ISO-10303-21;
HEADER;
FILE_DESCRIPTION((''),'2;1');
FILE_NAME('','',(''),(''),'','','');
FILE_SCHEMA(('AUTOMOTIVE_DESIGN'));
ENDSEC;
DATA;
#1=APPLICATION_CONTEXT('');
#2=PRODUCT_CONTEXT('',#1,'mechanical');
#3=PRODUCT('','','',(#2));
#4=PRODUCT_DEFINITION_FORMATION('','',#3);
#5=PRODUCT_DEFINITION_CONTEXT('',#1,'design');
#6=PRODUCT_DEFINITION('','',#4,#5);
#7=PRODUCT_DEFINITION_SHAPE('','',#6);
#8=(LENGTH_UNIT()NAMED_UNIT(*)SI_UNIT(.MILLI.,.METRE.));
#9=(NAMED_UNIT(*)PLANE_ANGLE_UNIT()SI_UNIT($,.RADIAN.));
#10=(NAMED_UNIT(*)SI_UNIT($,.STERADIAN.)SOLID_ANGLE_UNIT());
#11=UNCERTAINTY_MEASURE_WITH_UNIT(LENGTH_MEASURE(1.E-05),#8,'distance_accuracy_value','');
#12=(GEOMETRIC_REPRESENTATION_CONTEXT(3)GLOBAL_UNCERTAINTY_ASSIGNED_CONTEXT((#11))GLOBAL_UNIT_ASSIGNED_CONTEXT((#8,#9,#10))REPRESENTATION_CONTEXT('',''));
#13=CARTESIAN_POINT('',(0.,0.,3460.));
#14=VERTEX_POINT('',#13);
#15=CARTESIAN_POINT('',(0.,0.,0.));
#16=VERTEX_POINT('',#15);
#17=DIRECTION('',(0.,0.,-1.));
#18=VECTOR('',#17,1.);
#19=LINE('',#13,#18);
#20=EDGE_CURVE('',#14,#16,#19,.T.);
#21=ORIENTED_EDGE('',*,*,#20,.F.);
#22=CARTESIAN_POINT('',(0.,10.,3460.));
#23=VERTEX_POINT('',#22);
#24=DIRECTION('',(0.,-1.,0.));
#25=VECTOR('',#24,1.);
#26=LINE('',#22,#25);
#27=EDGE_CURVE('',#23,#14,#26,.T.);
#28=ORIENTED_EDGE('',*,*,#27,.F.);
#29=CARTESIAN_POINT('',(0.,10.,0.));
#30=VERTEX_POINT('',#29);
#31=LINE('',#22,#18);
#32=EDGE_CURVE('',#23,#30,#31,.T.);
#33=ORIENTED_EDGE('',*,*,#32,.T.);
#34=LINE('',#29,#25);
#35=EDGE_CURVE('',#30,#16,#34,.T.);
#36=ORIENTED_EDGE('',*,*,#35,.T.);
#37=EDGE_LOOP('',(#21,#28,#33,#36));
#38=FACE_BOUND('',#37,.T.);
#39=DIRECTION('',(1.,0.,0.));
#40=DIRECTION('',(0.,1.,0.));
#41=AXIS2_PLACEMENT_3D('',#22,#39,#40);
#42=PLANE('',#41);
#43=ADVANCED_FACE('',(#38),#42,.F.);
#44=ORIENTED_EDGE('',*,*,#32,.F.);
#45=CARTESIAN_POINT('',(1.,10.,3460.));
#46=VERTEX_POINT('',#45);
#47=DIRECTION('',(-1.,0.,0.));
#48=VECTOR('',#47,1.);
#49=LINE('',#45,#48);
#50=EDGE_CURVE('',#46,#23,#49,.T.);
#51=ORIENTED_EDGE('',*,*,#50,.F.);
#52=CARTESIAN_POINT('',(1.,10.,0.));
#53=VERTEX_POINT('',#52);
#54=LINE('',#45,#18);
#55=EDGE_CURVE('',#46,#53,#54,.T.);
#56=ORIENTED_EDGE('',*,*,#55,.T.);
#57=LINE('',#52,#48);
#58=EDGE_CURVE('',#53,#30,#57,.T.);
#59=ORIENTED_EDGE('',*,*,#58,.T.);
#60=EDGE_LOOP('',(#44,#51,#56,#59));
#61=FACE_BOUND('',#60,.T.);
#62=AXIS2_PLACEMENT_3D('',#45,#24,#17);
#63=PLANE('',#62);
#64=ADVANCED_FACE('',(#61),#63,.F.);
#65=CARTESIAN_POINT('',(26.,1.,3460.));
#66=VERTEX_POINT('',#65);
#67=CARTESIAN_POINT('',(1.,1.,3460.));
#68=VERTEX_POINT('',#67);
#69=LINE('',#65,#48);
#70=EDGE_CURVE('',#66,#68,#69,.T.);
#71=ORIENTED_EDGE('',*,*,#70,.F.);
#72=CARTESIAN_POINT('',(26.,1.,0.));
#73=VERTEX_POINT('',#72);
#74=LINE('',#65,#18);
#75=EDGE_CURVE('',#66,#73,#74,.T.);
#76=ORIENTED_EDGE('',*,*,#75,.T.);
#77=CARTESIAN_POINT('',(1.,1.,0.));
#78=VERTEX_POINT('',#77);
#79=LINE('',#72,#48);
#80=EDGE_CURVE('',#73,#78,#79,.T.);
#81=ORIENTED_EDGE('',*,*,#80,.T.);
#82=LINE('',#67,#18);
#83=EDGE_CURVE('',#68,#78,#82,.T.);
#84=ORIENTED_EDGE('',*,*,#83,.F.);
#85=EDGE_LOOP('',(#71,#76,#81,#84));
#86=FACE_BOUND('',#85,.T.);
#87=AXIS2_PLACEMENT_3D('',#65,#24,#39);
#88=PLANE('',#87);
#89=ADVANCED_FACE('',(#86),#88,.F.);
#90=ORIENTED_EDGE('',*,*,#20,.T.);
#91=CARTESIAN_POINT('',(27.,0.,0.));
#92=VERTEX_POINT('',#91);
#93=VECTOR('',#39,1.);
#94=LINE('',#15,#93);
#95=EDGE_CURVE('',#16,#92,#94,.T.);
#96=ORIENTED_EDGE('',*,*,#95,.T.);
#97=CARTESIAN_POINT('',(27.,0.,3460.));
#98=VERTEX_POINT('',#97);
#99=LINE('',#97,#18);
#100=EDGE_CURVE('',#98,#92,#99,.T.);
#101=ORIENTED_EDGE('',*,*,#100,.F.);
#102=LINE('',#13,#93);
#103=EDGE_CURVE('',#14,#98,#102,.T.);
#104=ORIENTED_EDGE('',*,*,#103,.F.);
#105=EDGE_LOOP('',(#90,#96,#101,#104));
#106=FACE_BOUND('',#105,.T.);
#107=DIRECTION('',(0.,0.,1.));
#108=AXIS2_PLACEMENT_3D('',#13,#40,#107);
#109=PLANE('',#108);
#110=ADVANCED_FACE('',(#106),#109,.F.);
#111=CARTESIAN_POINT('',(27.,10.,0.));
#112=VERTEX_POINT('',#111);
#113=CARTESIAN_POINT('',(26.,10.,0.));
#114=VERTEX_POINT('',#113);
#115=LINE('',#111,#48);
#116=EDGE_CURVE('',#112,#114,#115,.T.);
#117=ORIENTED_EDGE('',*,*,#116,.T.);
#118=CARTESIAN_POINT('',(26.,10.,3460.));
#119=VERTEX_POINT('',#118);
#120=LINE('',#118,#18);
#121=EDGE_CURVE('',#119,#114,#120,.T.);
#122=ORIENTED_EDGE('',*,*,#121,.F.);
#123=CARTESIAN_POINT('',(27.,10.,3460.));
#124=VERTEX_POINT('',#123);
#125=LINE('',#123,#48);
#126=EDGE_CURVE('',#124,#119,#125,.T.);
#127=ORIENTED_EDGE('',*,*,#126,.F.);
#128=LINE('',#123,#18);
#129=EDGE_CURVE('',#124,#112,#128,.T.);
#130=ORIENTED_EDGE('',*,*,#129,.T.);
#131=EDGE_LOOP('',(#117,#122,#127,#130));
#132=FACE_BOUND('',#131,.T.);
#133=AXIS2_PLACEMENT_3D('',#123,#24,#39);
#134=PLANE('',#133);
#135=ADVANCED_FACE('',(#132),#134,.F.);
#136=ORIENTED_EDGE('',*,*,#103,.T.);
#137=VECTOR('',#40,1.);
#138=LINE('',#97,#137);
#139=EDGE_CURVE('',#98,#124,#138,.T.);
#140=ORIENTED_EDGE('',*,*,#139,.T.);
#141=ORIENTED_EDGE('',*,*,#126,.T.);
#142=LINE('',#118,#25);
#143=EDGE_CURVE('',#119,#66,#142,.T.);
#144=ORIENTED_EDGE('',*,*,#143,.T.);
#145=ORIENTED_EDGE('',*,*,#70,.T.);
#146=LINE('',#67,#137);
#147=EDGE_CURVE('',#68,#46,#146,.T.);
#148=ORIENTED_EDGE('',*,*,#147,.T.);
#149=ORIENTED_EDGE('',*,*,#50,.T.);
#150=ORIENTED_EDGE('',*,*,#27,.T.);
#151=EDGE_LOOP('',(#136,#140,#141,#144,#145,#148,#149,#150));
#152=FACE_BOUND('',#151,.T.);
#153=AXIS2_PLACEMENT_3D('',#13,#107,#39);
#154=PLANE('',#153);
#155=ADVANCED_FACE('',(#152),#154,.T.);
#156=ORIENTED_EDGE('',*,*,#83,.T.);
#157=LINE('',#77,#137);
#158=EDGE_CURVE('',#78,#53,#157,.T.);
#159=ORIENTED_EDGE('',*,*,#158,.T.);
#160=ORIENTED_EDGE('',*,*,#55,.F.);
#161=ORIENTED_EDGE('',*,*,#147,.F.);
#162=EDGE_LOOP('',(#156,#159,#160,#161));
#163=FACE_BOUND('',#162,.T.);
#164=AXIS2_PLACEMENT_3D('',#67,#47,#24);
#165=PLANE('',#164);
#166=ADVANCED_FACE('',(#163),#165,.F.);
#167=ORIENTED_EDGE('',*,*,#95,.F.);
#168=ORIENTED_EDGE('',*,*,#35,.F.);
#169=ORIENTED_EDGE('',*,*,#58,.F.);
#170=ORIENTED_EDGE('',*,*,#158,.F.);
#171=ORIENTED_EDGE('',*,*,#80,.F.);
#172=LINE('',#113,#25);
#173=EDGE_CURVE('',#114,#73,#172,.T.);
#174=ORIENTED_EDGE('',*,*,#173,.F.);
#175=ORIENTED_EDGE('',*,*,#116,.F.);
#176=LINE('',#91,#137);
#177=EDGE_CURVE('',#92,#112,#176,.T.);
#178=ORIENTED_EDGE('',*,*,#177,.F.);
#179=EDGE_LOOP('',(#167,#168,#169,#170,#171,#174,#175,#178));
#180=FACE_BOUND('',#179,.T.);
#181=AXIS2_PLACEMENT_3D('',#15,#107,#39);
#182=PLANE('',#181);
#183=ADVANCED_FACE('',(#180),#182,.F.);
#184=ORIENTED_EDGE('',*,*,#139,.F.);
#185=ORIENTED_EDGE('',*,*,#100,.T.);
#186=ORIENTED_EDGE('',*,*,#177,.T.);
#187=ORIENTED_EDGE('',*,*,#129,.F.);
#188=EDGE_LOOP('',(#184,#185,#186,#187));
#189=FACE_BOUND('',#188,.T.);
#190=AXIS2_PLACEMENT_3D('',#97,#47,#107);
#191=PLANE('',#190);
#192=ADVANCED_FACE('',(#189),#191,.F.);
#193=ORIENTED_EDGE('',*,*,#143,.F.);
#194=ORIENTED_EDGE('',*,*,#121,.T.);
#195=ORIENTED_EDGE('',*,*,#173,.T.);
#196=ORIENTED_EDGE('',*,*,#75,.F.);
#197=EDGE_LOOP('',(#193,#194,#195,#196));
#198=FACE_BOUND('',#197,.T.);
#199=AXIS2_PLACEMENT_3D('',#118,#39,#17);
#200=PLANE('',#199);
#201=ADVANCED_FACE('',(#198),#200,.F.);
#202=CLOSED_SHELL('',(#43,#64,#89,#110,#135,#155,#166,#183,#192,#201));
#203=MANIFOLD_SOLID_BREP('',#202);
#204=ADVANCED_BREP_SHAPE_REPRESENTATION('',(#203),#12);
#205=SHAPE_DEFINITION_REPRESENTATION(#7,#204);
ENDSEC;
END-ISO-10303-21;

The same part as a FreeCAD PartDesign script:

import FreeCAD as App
import Part
import Sketcher
from FreeCAD import Vector
Q = App.Units.Quantity

doc = App.newDocument("Part")
body = doc.addObject("PartDesign::Body", "Body")

# Sketch on XY plane
sketch1 = body.newObject("Sketcher::SketchObject", "Sketch")
sketch1.AttachmentSupport = (doc.getObject("XY_Plane"), [""])
sketch1.MapMode = "FlatFace"
sketch1.addGeometry([
    Part.LineSegment(Vector(0, 10, 0), Vector(0, 0, 0)),  # 0
    Part.LineSegment(Vector(0, 0, 0), Vector(27, 0, 0)),  # 1
    Part.LineSegment(Vector(27, 0, 0), Vector(27, 10, 0)),  # 2
    Part.LineSegment(Vector(27, 10, 0), Vector(26, 10, 0)),  # 3
    Part.LineSegment(Vector(26, 10, 0), Vector(26, 1, 0)),  # 4
    Part.LineSegment(Vector(26, 1, 0), Vector(1, 1, 0)),  # 5
    Part.LineSegment(Vector(1, 1, 0), Vector(1, 10, 0)),  # 6
    Part.LineSegment(Vector(1, 10, 0), Vector(0, 10, 0)),  # 7
], False)
sketch1.addConstraint([
    Sketcher.Constraint("Coincident", 0, 2, 1, 1),
    Sketcher.Constraint("Coincident", 1, 2, 2, 1),
    Sketcher.Constraint("Coincident", 2, 2, 3, 1),
    Sketcher.Constraint("Coincident", 3, 2, 4, 1),
    Sketcher.Constraint("Coincident", 4, 2, 5, 1),
    Sketcher.Constraint("Coincident", 5, 2, 6, 1),
    Sketcher.Constraint("Coincident", 6, 2, 7, 1),
    Sketcher.Constraint("Coincident", 7, 2, 0, 1),
    Sketcher.Constraint("Vertical", 0),
    Sketcher.Constraint("Horizontal", 1),
    Sketcher.Constraint("Vertical", 2),
    Sketcher.Constraint("Horizontal", 3),
    Sketcher.Constraint("Vertical", 4),
    Sketcher.Constraint("Horizontal", 5),
    Sketcher.Constraint("Vertical", 6),
    Sketcher.Constraint("Horizontal", 7),
    Sketcher.Constraint("Coincident", 0, 2, -1, 1),
    Sketcher.Constraint("Horizontal", 3, 2, 6, 2),
    Sketcher.Constraint("Equal", 3, 7),
    Sketcher.Constraint("DistanceX", 1, 1, 1, 2, Q("27 mm")),
    Sketcher.Constraint("DistanceX", 3, 2, 3, 1, Q("1 mm")),
    Sketcher.Constraint("DistanceY", 0, 2, 0, 1, Q("10 mm")),
    Sketcher.Constraint("DistanceY", 4, 2, 4, 1, Q("9 mm")),
])
pad1 = body.newObject("PartDesign::Pad", "Pad")
pad1.Profile = sketch1
pad1.Length = 3460

doc.recompute()
